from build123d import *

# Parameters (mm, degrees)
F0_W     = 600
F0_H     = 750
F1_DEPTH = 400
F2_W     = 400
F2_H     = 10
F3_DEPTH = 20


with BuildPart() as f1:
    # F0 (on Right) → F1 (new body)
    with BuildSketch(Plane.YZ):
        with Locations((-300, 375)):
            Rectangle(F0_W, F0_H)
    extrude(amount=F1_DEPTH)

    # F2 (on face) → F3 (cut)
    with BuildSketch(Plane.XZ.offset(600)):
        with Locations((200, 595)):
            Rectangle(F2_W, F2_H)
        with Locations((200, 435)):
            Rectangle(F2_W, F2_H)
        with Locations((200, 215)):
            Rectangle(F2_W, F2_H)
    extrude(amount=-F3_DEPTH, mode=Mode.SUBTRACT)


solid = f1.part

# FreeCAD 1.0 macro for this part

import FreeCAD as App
import Part
import Sketcher
from FreeCAD import Vector
Q = App.Units.Quantity

doc = App.newDocument("Part")
body = doc.addObject("PartDesign::Body", "Body")

# Sketch on YZ plane
sketch1 = doc.addObject("Sketcher::SketchObject", "Sketch")
body.addObject(sketch1)
sketch1.AttachmentSupport = (doc.YZ_Plane, [""])
sketch1.MapMode = "FlatFace"
sketch1.addGeometry([
    Part.LineSegment(Vector(-600, 750, 0), Vector(-600, 0, 0)),
    Part.LineSegment(Vector(-600, 0, 0), Vector(0, 0, 0)),
    Part.LineSegment(Vector(0, 0, 0), Vector(0, 750, 0)),
    Part.LineSegment(Vector(0, 750, 0), Vector(-600, 750, 0)),
], False)
sketch1.addConstraint([
    Sketcher.Constraint("Coincident", 0, 2, 1, 1),
    Sketcher.Constraint("Coincident", 1, 2, 2, 1),
    Sketcher.Constraint("Coincident", 2, 2, 3, 1),
    Sketcher.Constraint("Coincident", 3, 2, 0, 1),
    Sketcher.Constraint("Vertical", 0),
    Sketcher.Constraint("Horizontal", 1),
    Sketcher.Constraint("Vertical", 2),
    Sketcher.Constraint("Horizontal", 3),
    Sketcher.Constraint("Coincident", 1, 2, -1, 1),
    Sketcher.Constraint("DistanceX", 1, 1, 1, 2, Q("600 mm")),
    Sketcher.Constraint("DistanceY", 0, 2, 0, 1, Q("750 mm")),
])
pad1 = doc.addObject("PartDesign::Pad", "Pad")
body.addObject(pad1)
pad1.Profile = sketch1
pad1.Length = 400

# Sketch on XZ plane
sketch2 = doc.addObject("Sketcher::SketchObject", "Sketch001")
body.addObject(sketch2)
sketch2.AttachmentSupport = (doc.XZ_Plane, [""])
sketch2.MapMode = "FlatFace"
sketch2.AttachmentOffset = App.Placement(Vector(0, 0, 600), App.Rotation())
sketch2.addGeometry([
    Part.LineSegment(Vector(0, 600, 0), Vector(0, 590, 0)),  # 0
    Part.LineSegment(Vector(0, 590, 0), Vector(400, 590, 0)),  # 1
    Part.LineSegment(Vector(400, 590, 0), Vector(400, 600, 0)),  # 2
    Part.LineSegment(Vector(400, 600, 0), Vector(0, 600, 0)),  # 3
    Part.LineSegment(Vector(0, 440, 0), Vector(0, 430, 0)),  # 4
    Part.LineSegment(Vector(0, 430, 0), Vector(400, 430, 0)),  # 5
    Part.LineSegment(Vector(400, 430, 0), Vector(400, 440, 0)),  # 6
    Part.LineSegment(Vector(400, 440, 0), Vector(0, 440, 0)),  # 7
    Part.LineSegment(Vector(0, 220, 0), Vector(0, 210, 0)),  # 8
    Part.LineSegment(Vector(0, 210, 0), Vector(400, 210, 0)),  # 9
    Part.LineSegment(Vector(400, 210, 0), Vector(400, 220, 0)),  # 10
    Part.LineSegment(Vector(400, 220, 0), Vector(0, 220, 0)),  # 11
], False)
sketch2.addConstraint([
    Sketcher.Constraint("Coincident", 0, 2, 1, 1),
    Sketcher.Constraint("Coincident", 1, 2, 2, 1),
    Sketcher.Constraint("Coincident", 2, 2, 3, 1),
    Sketcher.Constraint("Coincident", 3, 2, 0, 1),
    Sketcher.Constraint("Coincident", 4, 2, 5, 1),
    Sketcher.Constraint("Coincident", 5, 2, 6, 1),
    Sketcher.Constraint("Coincident", 6, 2, 7, 1),
    Sketcher.Constraint("Coincident", 7, 2, 4, 1),
    Sketcher.Constraint("Coincident", 8, 2, 9, 1),
    Sketcher.Constraint("Coincident", 9, 2, 10, 1),
    Sketcher.Constraint("Coincident", 10, 2, 11, 1),
    Sketcher.Constraint("Coincident", 11, 2, 8, 1),
    Sketcher.Constraint("Vertical", 0),
    Sketcher.Constraint("Horizontal", 1),
    Sketcher.Constraint("Vertical", 2),
    Sketcher.Constraint("Horizontal", 3),
    Sketcher.Constraint("Vertical", 4),
    Sketcher.Constraint("Horizontal", 5),
    Sketcher.Constraint("Vertical", 6),
    Sketcher.Constraint("Horizontal", 7),
    Sketcher.Constraint("Vertical", 8),
    Sketcher.Constraint("Horizontal", 9),
    Sketcher.Constraint("Vertical", 10),
    Sketcher.Constraint("Horizontal", 11),
    Sketcher.Constraint("PointOnObject", 0, 2, -2),
    Sketcher.Constraint("PointOnObject", 4, 2, -2),
    Sketcher.Constraint("PointOnObject", 8, 2, -2),
    Sketcher.Constraint("Vertical", 2, 2, 5, 2),
    Sketcher.Constraint("Vertical", 6, 2, 9, 2),
    Sketcher.Constraint("Equal", 2, 4),
    Sketcher.Constraint("Equal", 6, 8),
    Sketcher.Constraint("DistanceX", 1, 1, 1, 2, Q("400 mm")),
    Sketcher.Constraint("DistanceY", 0, 2, 0, 1, Q("10 mm")),
    Sketcher.Constraint("DistanceY", -1, 1, 0, 2, Q("590 mm")),
    Sketcher.Constraint("DistanceY", -1, 1, 4, 2, Q("430 mm")),
    Sketcher.Constraint("DistanceY", -1, 1, 8, 2, Q("210 mm")),
])
pocket1 = doc.addObject("PartDesign::Pocket", "Pocket")
body.addObject(pocket1)
pocket1.Profile = sketch2
pocket1.Length = 20

doc.recompute()
